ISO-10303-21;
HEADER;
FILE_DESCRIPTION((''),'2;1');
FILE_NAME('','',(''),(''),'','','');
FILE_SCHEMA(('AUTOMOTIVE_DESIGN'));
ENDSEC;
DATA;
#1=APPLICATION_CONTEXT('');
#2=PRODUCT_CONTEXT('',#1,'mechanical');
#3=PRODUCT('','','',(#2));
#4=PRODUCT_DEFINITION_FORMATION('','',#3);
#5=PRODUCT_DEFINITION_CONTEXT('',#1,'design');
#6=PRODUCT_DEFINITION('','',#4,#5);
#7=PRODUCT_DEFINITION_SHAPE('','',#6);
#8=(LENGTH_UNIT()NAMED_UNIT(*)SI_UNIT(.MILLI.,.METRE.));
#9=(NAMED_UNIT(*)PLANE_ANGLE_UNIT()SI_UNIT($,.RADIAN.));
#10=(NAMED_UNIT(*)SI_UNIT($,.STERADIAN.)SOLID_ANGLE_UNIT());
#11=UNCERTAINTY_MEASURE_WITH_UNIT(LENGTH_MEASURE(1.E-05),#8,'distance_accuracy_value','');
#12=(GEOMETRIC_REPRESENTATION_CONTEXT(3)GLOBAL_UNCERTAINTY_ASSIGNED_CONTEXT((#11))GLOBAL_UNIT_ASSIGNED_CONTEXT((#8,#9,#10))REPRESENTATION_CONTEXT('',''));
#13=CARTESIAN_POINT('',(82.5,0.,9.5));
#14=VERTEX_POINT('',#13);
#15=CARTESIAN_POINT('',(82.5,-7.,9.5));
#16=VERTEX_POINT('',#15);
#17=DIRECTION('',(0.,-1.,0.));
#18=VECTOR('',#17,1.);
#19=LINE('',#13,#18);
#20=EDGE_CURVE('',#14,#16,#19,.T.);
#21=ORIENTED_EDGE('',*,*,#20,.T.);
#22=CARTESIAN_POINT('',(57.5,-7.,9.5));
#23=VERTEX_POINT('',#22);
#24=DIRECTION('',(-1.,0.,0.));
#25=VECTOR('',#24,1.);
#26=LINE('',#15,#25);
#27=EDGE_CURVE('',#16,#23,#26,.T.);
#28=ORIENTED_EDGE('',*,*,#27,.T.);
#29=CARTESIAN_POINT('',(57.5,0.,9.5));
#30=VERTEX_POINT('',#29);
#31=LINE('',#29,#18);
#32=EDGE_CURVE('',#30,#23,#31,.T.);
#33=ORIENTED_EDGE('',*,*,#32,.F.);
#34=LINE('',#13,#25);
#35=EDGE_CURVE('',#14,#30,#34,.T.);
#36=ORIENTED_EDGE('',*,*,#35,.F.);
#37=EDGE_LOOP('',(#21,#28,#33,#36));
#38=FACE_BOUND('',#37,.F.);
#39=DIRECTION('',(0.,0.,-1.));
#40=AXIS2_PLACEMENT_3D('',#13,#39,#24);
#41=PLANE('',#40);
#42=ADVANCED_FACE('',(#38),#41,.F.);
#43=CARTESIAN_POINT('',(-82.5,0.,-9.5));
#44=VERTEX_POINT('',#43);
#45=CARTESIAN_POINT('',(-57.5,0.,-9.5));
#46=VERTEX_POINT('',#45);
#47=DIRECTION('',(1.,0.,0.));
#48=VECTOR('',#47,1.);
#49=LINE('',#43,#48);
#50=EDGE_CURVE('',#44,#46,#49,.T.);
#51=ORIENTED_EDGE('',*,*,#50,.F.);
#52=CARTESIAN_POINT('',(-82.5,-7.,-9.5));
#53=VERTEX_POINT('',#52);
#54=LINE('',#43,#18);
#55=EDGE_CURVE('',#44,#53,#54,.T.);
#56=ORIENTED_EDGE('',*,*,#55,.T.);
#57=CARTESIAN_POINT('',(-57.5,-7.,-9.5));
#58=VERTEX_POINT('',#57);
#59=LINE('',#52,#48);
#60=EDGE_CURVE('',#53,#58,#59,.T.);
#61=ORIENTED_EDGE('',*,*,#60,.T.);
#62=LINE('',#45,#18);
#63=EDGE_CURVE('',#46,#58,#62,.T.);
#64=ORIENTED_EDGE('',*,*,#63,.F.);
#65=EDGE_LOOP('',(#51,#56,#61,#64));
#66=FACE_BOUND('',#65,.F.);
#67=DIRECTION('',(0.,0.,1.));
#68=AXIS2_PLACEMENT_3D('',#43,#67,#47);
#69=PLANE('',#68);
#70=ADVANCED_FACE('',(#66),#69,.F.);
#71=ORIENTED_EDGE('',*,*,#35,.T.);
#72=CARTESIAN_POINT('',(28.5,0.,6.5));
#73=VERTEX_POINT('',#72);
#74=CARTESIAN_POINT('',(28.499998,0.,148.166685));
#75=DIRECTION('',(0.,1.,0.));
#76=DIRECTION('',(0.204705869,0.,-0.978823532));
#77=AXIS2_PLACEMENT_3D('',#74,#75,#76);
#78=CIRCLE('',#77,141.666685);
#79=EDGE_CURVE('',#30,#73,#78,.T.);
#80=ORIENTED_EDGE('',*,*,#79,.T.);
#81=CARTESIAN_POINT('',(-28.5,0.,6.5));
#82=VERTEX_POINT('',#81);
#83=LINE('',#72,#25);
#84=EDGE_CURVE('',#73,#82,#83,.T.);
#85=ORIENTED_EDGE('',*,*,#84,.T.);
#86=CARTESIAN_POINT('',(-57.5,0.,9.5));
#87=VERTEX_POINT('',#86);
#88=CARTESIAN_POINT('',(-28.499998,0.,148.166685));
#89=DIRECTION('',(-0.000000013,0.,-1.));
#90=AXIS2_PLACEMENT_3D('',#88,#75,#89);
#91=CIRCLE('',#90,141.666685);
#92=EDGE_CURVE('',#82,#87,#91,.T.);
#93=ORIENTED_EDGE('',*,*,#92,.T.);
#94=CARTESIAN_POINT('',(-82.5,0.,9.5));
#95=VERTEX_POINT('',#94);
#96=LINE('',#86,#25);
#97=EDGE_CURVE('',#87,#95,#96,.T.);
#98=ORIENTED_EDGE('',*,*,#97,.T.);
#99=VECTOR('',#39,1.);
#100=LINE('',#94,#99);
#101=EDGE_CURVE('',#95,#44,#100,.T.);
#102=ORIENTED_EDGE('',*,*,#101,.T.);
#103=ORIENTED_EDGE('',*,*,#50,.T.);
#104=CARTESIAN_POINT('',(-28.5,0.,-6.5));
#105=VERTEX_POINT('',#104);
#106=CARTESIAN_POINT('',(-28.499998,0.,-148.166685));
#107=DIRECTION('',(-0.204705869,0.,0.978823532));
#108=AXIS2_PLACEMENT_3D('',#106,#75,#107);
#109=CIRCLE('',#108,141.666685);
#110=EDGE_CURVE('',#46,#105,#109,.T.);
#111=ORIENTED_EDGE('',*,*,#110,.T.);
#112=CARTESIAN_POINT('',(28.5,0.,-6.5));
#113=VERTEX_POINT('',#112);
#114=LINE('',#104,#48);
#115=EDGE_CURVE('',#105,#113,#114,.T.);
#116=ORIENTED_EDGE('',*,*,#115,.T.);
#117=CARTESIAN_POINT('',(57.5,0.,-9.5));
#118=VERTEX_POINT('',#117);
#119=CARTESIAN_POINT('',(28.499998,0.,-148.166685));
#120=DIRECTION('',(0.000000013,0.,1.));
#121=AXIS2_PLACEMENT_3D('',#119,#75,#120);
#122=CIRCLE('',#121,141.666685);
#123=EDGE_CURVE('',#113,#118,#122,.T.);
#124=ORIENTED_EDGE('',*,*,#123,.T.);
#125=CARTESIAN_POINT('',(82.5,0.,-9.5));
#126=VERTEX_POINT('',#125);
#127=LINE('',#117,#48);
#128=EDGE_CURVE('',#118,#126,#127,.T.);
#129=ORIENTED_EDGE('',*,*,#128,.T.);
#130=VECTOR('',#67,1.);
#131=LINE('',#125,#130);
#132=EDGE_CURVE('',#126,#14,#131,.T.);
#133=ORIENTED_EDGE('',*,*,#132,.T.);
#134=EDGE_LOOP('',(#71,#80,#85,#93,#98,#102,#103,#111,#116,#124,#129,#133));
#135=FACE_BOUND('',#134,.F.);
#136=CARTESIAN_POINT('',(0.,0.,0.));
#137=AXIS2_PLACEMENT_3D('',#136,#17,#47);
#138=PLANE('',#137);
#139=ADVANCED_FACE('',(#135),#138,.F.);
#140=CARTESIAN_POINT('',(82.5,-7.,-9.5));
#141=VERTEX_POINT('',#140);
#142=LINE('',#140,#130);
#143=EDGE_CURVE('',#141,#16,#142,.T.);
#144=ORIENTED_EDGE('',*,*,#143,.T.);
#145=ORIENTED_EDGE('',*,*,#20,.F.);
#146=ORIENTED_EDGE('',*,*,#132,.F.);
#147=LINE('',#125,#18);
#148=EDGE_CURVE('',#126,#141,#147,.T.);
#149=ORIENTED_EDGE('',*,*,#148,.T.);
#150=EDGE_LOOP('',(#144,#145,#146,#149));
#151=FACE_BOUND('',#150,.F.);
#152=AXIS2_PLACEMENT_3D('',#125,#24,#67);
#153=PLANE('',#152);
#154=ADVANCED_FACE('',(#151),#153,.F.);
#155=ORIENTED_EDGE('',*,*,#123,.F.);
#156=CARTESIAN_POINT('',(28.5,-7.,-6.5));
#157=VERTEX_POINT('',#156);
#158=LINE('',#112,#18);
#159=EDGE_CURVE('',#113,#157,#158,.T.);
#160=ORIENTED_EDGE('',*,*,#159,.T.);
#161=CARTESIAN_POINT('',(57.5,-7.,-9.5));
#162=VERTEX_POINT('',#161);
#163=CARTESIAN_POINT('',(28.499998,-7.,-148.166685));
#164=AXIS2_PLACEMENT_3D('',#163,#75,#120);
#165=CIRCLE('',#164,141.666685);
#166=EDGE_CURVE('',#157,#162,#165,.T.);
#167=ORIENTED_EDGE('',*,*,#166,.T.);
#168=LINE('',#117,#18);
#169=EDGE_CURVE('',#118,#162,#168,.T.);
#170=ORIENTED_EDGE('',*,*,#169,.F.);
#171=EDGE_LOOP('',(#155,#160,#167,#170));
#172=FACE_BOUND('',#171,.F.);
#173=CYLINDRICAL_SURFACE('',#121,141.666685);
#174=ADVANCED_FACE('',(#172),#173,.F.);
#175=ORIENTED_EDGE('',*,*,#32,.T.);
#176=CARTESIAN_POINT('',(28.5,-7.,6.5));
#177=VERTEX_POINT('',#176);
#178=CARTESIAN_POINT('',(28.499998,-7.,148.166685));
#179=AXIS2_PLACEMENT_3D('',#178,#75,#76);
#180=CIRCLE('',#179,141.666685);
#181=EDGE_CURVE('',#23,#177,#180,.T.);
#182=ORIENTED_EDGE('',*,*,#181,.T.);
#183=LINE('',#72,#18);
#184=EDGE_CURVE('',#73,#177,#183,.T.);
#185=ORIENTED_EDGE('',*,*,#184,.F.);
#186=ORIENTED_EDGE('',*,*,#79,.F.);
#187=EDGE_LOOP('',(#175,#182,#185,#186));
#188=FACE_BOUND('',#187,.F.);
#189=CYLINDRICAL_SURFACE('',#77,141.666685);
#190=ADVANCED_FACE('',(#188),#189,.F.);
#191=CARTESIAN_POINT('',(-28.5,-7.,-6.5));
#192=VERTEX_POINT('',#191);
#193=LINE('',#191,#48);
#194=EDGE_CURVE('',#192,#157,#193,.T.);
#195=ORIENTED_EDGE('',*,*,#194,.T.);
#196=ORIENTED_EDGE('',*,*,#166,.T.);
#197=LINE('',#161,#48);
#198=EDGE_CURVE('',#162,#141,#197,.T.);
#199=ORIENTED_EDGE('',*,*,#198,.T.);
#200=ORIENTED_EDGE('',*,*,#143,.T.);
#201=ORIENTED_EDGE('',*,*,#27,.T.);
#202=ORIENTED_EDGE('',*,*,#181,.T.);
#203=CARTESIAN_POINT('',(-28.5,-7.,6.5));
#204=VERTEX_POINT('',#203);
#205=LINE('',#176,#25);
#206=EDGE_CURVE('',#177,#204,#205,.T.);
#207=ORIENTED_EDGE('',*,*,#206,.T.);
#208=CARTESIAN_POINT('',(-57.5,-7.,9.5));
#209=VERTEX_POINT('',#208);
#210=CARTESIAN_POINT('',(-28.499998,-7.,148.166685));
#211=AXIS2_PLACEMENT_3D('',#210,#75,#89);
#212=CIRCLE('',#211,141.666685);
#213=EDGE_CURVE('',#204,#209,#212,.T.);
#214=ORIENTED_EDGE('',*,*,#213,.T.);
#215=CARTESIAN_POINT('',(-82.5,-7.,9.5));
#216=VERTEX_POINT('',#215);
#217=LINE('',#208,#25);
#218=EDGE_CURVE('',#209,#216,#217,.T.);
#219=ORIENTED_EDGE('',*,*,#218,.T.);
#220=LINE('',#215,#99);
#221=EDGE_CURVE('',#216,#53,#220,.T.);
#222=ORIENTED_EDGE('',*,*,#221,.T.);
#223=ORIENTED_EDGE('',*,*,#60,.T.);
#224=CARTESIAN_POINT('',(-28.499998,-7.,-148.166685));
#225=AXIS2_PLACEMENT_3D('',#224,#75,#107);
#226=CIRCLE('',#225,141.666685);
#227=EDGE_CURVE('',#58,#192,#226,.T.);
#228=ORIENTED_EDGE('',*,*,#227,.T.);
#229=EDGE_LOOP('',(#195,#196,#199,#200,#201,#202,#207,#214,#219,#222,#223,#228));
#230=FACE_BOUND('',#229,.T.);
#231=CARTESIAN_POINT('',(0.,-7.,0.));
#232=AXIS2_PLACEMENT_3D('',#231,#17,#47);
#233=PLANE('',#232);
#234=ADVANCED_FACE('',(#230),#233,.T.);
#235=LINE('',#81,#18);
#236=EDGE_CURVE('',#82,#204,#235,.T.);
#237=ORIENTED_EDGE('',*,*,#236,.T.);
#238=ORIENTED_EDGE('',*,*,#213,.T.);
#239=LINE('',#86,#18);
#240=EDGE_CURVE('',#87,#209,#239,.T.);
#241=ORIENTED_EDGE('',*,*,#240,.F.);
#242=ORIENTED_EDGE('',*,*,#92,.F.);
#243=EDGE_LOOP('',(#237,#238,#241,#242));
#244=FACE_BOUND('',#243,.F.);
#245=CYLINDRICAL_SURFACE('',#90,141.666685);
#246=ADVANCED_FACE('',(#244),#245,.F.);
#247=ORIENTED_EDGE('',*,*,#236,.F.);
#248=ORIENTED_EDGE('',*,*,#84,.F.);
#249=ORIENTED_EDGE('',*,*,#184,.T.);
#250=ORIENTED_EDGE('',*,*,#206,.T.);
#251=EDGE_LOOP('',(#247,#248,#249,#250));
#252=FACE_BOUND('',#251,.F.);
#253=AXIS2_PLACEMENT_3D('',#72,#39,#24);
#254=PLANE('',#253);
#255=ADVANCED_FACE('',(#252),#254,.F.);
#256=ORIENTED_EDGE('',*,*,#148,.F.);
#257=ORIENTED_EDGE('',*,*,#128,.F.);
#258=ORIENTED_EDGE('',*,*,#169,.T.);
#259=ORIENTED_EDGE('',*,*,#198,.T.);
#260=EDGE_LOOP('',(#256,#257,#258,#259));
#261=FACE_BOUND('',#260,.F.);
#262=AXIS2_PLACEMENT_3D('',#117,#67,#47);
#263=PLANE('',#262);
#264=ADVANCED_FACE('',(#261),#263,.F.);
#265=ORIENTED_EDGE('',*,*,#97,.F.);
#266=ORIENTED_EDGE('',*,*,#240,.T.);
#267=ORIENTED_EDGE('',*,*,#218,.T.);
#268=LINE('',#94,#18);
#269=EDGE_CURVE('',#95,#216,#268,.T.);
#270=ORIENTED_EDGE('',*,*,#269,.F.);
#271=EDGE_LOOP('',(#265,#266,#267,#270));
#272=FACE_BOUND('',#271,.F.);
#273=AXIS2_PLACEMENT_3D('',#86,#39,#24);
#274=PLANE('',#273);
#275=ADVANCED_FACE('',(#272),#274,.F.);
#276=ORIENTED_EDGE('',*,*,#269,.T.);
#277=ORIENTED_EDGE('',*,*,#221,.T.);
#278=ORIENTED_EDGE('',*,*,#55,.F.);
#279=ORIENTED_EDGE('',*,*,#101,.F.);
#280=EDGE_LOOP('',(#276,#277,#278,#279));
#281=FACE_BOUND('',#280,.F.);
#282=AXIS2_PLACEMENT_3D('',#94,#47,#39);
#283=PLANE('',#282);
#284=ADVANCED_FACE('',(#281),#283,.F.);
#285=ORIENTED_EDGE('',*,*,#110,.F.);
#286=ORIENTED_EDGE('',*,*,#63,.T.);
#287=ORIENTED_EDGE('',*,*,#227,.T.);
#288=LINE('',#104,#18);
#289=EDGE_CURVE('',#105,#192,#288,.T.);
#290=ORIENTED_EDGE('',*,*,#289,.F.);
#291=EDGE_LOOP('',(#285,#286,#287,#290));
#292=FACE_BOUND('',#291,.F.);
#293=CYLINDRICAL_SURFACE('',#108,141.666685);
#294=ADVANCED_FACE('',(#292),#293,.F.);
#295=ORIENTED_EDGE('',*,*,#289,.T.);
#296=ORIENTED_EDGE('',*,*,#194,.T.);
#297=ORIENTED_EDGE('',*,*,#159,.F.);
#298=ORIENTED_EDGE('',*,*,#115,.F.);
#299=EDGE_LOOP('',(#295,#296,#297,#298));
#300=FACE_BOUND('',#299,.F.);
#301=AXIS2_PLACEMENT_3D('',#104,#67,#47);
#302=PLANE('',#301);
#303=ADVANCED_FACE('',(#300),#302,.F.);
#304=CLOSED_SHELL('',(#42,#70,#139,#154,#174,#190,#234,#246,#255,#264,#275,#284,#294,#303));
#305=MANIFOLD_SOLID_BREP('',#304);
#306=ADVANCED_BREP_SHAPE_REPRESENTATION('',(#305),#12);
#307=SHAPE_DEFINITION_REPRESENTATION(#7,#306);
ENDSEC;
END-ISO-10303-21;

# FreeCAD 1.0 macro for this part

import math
import FreeCAD as App
import Part
import Sketcher

V = App.Vector

doc = App.newDocument("Part")
body = doc.addObject("PartDesign::Body", "Body")

# Sketch on XZ plane
sketch1 = body.newObject("Sketcher::SketchObject", "Sketch")
sketch1.AttachmentSupport = (doc.getObject("XZ_Plane"), [""])
sketch1.MapMode = "FlatFace"
sketch1.addGeometry(Part.LineSegment(V(28, 6, 0), V(-28, 6, 0)), False)
sketch1.addGeometry(Part.ArcOfCircle(Part.Circle(V(-28, 148, 0), V(0, 0, 1), 142), math.radians(-101.81), math.radians(-90)), False)
sketch1.addGeometry(Part.LineSegment(V(-58, 10, 0), V(-82, 10, 0)), False)
sketch1.addGeometry(Part.LineSegment(V(-82, 10, 0), V(-82, -10, 0)), False)
sketch1.addGeometry(Part.LineSegment(V(-82, -10, 0), V(-58, -10, 0)), False)
sketch1.addGeometry(Part.ArcOfCircle(Part.Circle(V(-28, -148, 0), V(0, 0, 1), 142), math.radians(90), math.radians(101.81)), False)
sketch1.addGeometry(Part.LineSegment(V(-28, -6, 0), V(28, -6, 0)), False)
sketch1.addGeometry(Part.ArcOfCircle(Part.Circle(V(28, -148, 0), V(0, 0, 1), 142), math.radians(78.19), math.radians(90)), False)
sketch1.addGeometry(Part.LineSegment(V(58, -10, 0), V(82, -10, 0)), False)
sketch1.addGeometry(Part.LineSegment(V(82, -10, 0), V(82, 10, 0)), False)
sketch1.addGeometry(Part.LineSegment(V(82, 10, 0), V(58, 10, 0)), False)
sketch1.addGeometry(Part.ArcOfCircle(Part.Circle(V(28, 148, 0), V(0, 0, 1), 142), math.radians(-90), math.radians(-78.19)), False)
sketch1.addConstraint(Sketcher.Constraint("Tangent", 0, 2, 1, 2))
sketch1.addConstraint(Sketcher.Constraint("Coincident", 1, 1, 2, 1))
sketch1.addConstraint(Sketcher.Constraint("Coincident", 2, 2, 3, 1))
sketch1.addConstraint(Sketcher.Constraint("Coincident", 3, 2, 4, 1))
sketch1.addConstraint(Sketcher.Constraint("Coincident", 4, 2, 5, 2))
sketch1.addConstraint(Sketcher.Constraint("Tangent", 5, 1, 6, 1))
sketch1.addConstraint(Sketcher.Constraint("Tangent", 6, 2, 7, 2))
sketch1.addConstraint(Sketcher.Constraint("Coincident", 7, 1, 8, 1))
sketch1.addConstraint(Sketcher.Constraint("Coincident", 8, 2, 9, 1))
sketch1.addConstraint(Sketcher.Constraint("Coincident", 9, 2, 10, 1))
sketch1.addConstraint(Sketcher.Constraint("Coincident", 10, 2, 11, 2))
sketch1.addConstraint(Sketcher.Constraint("Tangent", 11, 1, 0, 1))
sketch1.addConstraint(Sketcher.Constraint("Horizontal", 0))
sketch1.addConstraint(Sketcher.Constraint("Horizontal", 2))
sketch1.addConstraint(Sketcher.Constraint("Vertical", 3))
sketch1.addConstraint(Sketcher.Constraint("Horizontal", 4))
sketch1.addConstraint(Sketcher.Constraint("Horizontal", 6))
sketch1.addConstraint(Sketcher.Constraint("Horizontal", 8))
sketch1.addConstraint(Sketcher.Constraint("Vertical", 9))
sketch1.addConstraint(Sketcher.Constraint("Horizontal", 10))
sketch1.addConstraint(Sketcher.Constraint("Equal", 1, 5))
sketch1.addConstraint(Sketcher.Constraint("Equal", 5, 7))
sketch1.addConstraint(Sketcher.Constraint("Equal", 7, 11))
sketch1.addConstraint(Sketcher.Constraint("Symmetric", 1, 3, 7, 3, -1, 1))
sketch1.addConstraint(Sketcher.Constraint("Symmetric", 2, 2, 8, 2, -1, 1))
sketch1.addConstraint(Sketcher.Constraint("Symmetric", 4, 2, 10, 2, -1, 1))
sketch1.addConstraint(Sketcher.Constraint("Symmetric", 4, 2, 7, 1, -2))
sketch1.addConstraint(Sketcher.Constraint("DistanceX", 0, 2, 0, 1, 57.0))
sketch1.addConstraint(Sketcher.Constraint("DistanceX", 2, 2, 2, 1, 25.0))
sketch1.addConstraint(Sketcher.Constraint("DistanceY", 3, 2, 3, 1, 19.0))
sketch1.addConstraint(Sketcher.Constraint("DistanceX", 1, 1, 0, 2, 29.0))
sketch1.addConstraint(Sketcher.Constraint("DistanceY", 0, 2, 2, 2, 3.0))
pad1 = body.newObject("PartDesign::Pad", "Pad")
pad1.Profile = sketch1
pad1.Length = 7

doc.recompute()
